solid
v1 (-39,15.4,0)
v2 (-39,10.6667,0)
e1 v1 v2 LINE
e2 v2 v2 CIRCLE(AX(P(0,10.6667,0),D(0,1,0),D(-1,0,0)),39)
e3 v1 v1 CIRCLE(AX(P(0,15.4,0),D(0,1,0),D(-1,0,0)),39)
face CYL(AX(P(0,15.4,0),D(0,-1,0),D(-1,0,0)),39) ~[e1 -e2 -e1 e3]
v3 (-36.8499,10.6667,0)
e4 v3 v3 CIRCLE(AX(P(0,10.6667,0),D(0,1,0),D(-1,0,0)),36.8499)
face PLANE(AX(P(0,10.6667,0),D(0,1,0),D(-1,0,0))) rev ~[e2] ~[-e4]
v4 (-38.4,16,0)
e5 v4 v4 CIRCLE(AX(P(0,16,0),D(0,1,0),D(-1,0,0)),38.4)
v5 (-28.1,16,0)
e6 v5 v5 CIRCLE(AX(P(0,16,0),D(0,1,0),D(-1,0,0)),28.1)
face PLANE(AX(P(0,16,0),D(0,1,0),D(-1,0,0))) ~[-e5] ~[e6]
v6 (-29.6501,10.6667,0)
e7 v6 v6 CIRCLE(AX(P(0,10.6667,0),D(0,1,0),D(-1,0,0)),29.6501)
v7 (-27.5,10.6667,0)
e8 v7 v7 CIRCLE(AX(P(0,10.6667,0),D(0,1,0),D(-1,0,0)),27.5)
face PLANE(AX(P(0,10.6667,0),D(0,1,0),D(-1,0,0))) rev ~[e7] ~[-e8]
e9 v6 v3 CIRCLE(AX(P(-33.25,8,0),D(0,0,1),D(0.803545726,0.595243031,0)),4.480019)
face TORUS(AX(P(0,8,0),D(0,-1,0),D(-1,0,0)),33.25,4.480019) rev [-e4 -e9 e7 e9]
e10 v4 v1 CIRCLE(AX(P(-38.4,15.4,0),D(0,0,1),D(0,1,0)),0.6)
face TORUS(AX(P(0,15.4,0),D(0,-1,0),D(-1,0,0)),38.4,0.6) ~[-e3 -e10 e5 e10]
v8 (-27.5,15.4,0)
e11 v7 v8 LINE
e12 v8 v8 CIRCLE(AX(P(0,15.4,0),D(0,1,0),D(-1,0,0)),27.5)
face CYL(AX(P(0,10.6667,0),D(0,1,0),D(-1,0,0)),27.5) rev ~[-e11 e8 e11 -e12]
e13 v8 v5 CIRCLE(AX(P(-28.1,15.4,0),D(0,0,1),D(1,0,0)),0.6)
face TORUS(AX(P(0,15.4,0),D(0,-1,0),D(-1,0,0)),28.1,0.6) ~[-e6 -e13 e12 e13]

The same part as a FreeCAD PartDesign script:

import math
import FreeCAD as App
import Part
import Sketcher

V = App.Vector

doc = App.newDocument("Part")
body = doc.addObject("PartDesign::Body", "Body")

sketch1 = body.newObject("Sketcher::SketchObject", "Sketch")
sketch1.AttachmentSupport = (doc.getObject("XY_Plane"), [""])
sketch1.MapMode = "FlatFace"
sketch1.addGeometry([
    Part.LineSegment(V(-39, 15.4, 0), V(-39, 10.6667, 0)),
    Part.LineSegment(V(-39, 10.6667, 0), V(-36.8499, 10.6667, 0)),
    Part.ArcOfCircle(Part.Circle(V(-33.25, 8, 0), V(0, 0, 1), 4.480019), math.radians(36.529959), math.radians(143.470041)),
    Part.LineSegment(V(-29.6501, 10.6667, 0), V(-27.5, 10.6667, 0)),
    Part.LineSegment(V(-27.5, 10.6667, 0), V(-27.5, 15.4, 0)),
    Part.ArcOfCircle(Part.Circle(V(-28.1, 15.4, 0), V(0, 0, 1), 0.6), math.radians(0), math.radians(90)),
    Part.LineSegment(V(-28.1, 16, 0), V(-38.4, 16, 0)),
    Part.ArcOfCircle(Part.Circle(V(-38.4, 15.4, 0), V(0, 0, 1), 0.6), math.radians(90), math.radians(180)),
], False)
sketch1.addConstraint([
    Sketcher.Constraint("Coincident", 0, 2, 1, 1),
    Sketcher.Constraint("Coincident", 1, 2, 2, 2),
    Sketcher.Constraint("Coincident", 2, 1, 3, 1),
    Sketcher.Constraint("Coincident", 3, 2, 4, 1),
    Sketcher.Constraint("Tangent", 4, 2, 5, 1),
    Sketcher.Constraint("Tangent", 5, 2, 6, 1),
    Sketcher.Constraint("Tangent", 6, 2, 7, 1),
    Sketcher.Constraint("Tangent", 7, 2, 0, 1),
    Sketcher.Constraint("Vertical", 0),
    Sketcher.Constraint("Horizontal", 1),
    Sketcher.Constraint("Horizontal", 3),
    Sketcher.Constraint("Vertical", 4),
    Sketcher.Constraint("Horizontal", 6),
    Sketcher.Constraint("Equal", 5, 7),
    Sketcher.Constraint("Horizontal", 1, 2, 2, 1),
    Sketcher.Constraint("Equal", 1, 3),
    Sketcher.Constraint("Radius", 5, 0.6),
    Sketcher.Constraint("Radius", 2, 4.48),
    Sketcher.Constraint("DistanceX", 6, 2, 6, 1, 10.3),
    Sketcher.Constraint("DistanceY", -1, 1, 2, 3, 8.0),
    Sketcher.Constraint("DistanceX", 0, 2, -1, 1, 39.0),
    Sketcher.Constraint("DistanceY", -1, 1, 5, 2, 16.0),
    Sketcher.Constraint("DistanceX", 1, 1, 1, 2, 2.15),
])
revolution = body.newObject("PartDesign::Revolution", "Revolution")
revolution.Profile = sketch1
revolution.ReferenceAxis = (sketch1, ["V_Axis"])
revolution.Angle = 360

doc.recompute()
